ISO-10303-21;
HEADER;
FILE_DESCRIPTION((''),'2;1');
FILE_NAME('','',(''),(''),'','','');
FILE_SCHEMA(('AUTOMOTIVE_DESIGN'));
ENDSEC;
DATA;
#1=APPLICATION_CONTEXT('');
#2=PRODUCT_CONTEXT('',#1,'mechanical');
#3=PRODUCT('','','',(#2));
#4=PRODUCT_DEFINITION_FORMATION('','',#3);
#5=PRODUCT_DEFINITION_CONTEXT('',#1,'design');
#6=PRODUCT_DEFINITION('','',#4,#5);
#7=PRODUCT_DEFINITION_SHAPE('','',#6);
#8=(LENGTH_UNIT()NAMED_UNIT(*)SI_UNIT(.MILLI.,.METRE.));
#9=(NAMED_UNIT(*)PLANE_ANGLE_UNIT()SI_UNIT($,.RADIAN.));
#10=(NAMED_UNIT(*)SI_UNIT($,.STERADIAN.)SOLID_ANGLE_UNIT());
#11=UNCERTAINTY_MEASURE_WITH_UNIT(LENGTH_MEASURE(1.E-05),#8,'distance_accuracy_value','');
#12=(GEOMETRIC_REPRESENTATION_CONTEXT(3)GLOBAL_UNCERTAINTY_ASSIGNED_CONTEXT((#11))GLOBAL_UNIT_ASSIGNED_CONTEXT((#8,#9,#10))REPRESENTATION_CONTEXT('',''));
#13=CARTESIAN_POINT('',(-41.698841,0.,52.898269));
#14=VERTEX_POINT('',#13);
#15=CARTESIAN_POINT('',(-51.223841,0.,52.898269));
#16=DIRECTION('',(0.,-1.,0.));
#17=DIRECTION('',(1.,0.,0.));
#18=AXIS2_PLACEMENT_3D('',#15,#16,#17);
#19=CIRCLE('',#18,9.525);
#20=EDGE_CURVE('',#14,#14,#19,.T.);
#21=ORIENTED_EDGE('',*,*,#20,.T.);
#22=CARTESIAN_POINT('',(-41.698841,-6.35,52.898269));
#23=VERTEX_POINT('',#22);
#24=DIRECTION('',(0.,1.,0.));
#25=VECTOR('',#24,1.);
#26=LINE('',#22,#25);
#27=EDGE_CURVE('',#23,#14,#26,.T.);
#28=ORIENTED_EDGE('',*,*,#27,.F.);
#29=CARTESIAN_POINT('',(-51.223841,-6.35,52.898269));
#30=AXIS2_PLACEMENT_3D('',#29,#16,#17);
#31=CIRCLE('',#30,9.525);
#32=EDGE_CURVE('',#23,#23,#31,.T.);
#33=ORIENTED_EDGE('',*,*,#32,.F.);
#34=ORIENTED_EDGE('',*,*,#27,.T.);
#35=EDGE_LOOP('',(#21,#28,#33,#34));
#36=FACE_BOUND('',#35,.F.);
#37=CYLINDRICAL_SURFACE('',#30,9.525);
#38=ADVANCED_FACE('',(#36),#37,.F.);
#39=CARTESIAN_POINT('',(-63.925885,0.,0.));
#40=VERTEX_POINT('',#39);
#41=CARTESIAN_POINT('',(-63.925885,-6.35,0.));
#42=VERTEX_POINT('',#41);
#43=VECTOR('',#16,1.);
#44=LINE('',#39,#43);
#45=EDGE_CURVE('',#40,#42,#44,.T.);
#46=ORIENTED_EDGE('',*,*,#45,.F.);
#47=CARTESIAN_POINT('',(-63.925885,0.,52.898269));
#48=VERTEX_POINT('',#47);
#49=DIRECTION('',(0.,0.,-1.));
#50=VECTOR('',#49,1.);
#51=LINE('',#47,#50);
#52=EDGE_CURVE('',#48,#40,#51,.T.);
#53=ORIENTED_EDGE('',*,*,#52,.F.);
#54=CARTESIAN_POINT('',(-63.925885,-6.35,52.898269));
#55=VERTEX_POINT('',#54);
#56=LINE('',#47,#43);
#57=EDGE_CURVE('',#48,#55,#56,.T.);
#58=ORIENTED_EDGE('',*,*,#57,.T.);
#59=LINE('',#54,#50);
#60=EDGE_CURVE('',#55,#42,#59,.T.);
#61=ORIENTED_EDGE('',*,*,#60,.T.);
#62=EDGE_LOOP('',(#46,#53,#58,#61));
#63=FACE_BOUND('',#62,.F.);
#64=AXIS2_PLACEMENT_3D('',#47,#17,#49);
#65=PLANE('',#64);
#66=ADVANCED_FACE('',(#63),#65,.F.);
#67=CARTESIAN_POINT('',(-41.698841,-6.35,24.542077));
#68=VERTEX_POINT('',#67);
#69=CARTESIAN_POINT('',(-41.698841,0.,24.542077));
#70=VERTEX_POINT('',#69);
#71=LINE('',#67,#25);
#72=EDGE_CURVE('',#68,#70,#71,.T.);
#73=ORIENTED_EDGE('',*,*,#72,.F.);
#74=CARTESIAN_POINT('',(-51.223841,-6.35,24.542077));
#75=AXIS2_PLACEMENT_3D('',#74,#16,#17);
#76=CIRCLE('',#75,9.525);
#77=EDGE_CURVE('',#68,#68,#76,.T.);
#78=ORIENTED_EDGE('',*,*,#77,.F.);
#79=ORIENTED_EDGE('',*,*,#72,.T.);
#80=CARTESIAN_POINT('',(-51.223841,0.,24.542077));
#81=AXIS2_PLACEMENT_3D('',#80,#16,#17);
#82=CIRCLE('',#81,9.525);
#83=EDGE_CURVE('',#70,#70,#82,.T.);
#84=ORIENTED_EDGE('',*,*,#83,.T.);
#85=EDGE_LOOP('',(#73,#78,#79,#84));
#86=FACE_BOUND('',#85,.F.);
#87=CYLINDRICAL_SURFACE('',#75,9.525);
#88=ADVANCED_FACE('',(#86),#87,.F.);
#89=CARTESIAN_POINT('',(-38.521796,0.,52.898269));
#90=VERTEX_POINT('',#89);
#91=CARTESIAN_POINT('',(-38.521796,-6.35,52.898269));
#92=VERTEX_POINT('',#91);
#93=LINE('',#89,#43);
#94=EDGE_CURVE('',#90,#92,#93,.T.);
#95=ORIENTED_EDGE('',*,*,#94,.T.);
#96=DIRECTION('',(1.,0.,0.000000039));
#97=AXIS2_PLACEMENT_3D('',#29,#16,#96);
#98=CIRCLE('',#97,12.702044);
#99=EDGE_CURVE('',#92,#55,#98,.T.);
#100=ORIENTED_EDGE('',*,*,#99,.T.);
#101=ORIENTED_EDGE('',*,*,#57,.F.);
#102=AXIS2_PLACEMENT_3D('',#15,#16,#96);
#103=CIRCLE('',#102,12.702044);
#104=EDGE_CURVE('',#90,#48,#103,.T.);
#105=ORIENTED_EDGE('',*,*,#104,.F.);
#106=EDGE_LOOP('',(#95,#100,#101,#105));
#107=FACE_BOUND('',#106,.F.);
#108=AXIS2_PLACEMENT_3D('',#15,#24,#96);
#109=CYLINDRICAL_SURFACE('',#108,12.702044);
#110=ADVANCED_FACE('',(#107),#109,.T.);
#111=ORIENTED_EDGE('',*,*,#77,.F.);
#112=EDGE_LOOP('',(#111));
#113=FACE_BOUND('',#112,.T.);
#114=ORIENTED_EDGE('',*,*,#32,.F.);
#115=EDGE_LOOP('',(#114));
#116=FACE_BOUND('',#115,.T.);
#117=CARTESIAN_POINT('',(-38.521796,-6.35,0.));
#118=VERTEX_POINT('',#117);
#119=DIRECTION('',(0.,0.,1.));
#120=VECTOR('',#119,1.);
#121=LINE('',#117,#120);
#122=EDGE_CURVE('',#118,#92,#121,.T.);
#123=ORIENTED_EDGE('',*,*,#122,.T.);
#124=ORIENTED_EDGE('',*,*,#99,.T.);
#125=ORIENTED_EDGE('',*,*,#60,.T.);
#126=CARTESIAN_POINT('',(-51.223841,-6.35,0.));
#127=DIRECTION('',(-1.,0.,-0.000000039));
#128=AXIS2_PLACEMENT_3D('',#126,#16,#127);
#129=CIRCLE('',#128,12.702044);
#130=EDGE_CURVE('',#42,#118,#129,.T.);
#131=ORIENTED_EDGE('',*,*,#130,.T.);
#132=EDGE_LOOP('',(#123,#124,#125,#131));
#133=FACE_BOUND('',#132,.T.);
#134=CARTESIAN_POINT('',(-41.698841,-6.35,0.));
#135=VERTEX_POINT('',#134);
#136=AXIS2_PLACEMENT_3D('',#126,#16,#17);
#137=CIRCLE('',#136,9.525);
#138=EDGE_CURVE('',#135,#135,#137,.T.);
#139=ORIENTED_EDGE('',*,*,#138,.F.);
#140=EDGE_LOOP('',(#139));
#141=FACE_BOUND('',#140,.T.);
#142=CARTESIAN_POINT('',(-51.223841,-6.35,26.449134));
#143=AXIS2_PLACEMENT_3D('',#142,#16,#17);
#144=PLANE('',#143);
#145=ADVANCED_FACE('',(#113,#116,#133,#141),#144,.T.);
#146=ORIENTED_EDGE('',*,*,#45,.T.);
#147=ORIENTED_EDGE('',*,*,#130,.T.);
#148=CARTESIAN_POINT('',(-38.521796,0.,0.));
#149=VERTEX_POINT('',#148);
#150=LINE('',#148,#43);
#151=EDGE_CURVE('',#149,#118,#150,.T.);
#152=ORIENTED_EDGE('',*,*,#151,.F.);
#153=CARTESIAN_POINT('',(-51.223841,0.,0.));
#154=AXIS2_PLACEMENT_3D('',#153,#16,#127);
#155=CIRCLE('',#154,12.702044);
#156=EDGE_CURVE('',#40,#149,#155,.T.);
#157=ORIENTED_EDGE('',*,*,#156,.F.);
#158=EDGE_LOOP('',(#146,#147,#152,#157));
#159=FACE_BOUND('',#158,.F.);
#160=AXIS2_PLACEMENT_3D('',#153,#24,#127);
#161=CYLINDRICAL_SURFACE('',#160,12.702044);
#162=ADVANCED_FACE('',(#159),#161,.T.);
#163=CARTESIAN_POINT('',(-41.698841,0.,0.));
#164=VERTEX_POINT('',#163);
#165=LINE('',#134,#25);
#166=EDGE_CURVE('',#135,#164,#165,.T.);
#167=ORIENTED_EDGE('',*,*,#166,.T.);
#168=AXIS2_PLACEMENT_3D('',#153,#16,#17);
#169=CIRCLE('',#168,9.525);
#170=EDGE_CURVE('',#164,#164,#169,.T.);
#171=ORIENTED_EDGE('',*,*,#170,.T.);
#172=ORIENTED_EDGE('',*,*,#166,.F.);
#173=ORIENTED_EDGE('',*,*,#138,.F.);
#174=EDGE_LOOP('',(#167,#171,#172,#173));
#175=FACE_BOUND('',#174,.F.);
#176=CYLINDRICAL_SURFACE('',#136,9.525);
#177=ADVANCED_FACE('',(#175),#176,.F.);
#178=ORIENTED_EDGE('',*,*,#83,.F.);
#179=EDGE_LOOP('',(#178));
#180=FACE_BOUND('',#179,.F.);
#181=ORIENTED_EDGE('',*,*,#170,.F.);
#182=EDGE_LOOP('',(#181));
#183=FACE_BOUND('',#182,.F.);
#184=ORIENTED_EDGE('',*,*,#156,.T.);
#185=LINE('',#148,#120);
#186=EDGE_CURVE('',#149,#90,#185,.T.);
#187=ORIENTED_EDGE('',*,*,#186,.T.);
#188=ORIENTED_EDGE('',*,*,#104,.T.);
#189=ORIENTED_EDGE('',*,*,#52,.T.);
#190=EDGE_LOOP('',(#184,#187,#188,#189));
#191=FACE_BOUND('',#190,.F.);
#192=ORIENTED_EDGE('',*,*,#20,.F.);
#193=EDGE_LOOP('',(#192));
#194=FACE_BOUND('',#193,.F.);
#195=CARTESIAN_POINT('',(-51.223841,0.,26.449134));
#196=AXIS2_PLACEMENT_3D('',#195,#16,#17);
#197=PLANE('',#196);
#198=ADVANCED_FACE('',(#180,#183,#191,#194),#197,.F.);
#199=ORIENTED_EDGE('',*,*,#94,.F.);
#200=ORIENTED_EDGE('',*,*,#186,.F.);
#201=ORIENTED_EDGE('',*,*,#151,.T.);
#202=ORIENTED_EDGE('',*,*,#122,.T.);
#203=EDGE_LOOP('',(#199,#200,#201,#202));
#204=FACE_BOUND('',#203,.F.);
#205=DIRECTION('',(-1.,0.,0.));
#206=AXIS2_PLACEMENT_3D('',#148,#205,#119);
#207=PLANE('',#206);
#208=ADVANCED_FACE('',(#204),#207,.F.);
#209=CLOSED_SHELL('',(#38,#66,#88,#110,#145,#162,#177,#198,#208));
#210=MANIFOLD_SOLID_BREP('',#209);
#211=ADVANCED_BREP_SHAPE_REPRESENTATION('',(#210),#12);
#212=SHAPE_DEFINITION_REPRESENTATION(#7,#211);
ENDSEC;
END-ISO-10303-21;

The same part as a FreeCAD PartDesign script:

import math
import FreeCAD as App
import Part
import Sketcher

V = App.Vector
Q = App.Units.Quantity

doc = App.newDocument("Part")
body = doc.addObject("PartDesign::Body", "Body")

# Sketch on XZ plane
sketch1 = body.newObject("Sketcher::SketchObject", "Sketch")
sketch1.AttachmentSupport = (doc.getObject("XZ_Plane"), [""])
sketch1.MapMode = "FlatFace"
sketch1.addGeometry([
    Part.ArcOfCircle(Part.Circle(V(-51.223841, 52.898269, 0), V(0, 0, 1), 12.702044), math.radians(0.000002), math.radians(179.999998)),
    Part.LineSegment(V(-63.925885, 52.898269, 0), V(-63.925885, 0, 0)),
    Part.ArcOfCircle(Part.Circle(V(-51.223841, 0, 0), V(0, 0, 1), 12.702044), math.radians(-179.999998), math.radians(-0.000002)),
    Part.LineSegment(V(-38.521796, 0, 0), V(-38.521796, 52.898269, 0)),
], False)
sketch1.addConstraint([
    Sketcher.Constraint("Tangent", 0, 2, 1, 1),
    Sketcher.Constraint("Tangent", 1, 2, 2, 1),
    Sketcher.Constraint("Tangent", 2, 2, 3, 1),
    Sketcher.Constraint("Tangent", 3, 2, 0, 1),
    Sketcher.Constraint("Vertical", 1),
    Sketcher.Constraint("Vertical", 3),
    Sketcher.Constraint("PointOnObject", 2, 3, -1),
    Sketcher.Constraint("Radius", 0, 12.702044),
    Sketcher.Constraint("DistanceY", 1, 2, 1, 1, 52.898269),
    Sketcher.Constraint("DistanceX", 0, 3, -1, 1, 51.223841),
])
pad1 = body.newObject("PartDesign::Pad", "Pad")
pad1.Profile = sketch1
pad1.Length = Q("0.25 in")

# Sketch on XZ plane
sketch2 = body.newObject("Sketcher::SketchObject", "Sketch001")
sketch2.AttachmentSupport = (doc.getObject("XZ_Plane"), [""])
sketch2.MapMode = "FlatFace"
sketch2.AttachmentOffset = App.Placement(V(0, 0, 0.25 * 25.4), App.Rotation())
sketch2.addGeometry([
    Part.Circle(V(-51.223841, 24.542077, 0), V(0, 0, 1), 9.525),
    Part.Circle(V(-51.223841, 0, 0), V(0, 0, 1), 9.525),
    Part.Circle(V(-51.223841, 52.898269, 0), V(0, 0, 1), 9.525),
], False)
sketch2.addConstraint([
    Sketcher.Constraint("Equal", 0, 1),
    Sketcher.Constraint("Equal", 1, 2),
    Sketcher.Constraint("PointOnObject", 1, 3, -1),
    Sketcher.Constraint("Vertical", 0, 3, 1, 3),
    Sketcher.Constraint("Vertical", 1, 3, 2, 3),
    Sketcher.Constraint("Diameter", 0, Q("0.75 in")),
    Sketcher.Constraint("DistanceX", 0, 3, -1, 1, 51.223841),
    Sketcher.Constraint("DistanceY", -1, 1, 2, 3, 52.898269),
    Sketcher.Constraint("DistanceY", 0, 3, 2, 3, 28.356192),
])
pocket1 = body.newObject("PartDesign::Pocket", "Pocket")
pocket1.Profile = sketch2
pocket1.Length = Q("1 in")

doc.recompute()
